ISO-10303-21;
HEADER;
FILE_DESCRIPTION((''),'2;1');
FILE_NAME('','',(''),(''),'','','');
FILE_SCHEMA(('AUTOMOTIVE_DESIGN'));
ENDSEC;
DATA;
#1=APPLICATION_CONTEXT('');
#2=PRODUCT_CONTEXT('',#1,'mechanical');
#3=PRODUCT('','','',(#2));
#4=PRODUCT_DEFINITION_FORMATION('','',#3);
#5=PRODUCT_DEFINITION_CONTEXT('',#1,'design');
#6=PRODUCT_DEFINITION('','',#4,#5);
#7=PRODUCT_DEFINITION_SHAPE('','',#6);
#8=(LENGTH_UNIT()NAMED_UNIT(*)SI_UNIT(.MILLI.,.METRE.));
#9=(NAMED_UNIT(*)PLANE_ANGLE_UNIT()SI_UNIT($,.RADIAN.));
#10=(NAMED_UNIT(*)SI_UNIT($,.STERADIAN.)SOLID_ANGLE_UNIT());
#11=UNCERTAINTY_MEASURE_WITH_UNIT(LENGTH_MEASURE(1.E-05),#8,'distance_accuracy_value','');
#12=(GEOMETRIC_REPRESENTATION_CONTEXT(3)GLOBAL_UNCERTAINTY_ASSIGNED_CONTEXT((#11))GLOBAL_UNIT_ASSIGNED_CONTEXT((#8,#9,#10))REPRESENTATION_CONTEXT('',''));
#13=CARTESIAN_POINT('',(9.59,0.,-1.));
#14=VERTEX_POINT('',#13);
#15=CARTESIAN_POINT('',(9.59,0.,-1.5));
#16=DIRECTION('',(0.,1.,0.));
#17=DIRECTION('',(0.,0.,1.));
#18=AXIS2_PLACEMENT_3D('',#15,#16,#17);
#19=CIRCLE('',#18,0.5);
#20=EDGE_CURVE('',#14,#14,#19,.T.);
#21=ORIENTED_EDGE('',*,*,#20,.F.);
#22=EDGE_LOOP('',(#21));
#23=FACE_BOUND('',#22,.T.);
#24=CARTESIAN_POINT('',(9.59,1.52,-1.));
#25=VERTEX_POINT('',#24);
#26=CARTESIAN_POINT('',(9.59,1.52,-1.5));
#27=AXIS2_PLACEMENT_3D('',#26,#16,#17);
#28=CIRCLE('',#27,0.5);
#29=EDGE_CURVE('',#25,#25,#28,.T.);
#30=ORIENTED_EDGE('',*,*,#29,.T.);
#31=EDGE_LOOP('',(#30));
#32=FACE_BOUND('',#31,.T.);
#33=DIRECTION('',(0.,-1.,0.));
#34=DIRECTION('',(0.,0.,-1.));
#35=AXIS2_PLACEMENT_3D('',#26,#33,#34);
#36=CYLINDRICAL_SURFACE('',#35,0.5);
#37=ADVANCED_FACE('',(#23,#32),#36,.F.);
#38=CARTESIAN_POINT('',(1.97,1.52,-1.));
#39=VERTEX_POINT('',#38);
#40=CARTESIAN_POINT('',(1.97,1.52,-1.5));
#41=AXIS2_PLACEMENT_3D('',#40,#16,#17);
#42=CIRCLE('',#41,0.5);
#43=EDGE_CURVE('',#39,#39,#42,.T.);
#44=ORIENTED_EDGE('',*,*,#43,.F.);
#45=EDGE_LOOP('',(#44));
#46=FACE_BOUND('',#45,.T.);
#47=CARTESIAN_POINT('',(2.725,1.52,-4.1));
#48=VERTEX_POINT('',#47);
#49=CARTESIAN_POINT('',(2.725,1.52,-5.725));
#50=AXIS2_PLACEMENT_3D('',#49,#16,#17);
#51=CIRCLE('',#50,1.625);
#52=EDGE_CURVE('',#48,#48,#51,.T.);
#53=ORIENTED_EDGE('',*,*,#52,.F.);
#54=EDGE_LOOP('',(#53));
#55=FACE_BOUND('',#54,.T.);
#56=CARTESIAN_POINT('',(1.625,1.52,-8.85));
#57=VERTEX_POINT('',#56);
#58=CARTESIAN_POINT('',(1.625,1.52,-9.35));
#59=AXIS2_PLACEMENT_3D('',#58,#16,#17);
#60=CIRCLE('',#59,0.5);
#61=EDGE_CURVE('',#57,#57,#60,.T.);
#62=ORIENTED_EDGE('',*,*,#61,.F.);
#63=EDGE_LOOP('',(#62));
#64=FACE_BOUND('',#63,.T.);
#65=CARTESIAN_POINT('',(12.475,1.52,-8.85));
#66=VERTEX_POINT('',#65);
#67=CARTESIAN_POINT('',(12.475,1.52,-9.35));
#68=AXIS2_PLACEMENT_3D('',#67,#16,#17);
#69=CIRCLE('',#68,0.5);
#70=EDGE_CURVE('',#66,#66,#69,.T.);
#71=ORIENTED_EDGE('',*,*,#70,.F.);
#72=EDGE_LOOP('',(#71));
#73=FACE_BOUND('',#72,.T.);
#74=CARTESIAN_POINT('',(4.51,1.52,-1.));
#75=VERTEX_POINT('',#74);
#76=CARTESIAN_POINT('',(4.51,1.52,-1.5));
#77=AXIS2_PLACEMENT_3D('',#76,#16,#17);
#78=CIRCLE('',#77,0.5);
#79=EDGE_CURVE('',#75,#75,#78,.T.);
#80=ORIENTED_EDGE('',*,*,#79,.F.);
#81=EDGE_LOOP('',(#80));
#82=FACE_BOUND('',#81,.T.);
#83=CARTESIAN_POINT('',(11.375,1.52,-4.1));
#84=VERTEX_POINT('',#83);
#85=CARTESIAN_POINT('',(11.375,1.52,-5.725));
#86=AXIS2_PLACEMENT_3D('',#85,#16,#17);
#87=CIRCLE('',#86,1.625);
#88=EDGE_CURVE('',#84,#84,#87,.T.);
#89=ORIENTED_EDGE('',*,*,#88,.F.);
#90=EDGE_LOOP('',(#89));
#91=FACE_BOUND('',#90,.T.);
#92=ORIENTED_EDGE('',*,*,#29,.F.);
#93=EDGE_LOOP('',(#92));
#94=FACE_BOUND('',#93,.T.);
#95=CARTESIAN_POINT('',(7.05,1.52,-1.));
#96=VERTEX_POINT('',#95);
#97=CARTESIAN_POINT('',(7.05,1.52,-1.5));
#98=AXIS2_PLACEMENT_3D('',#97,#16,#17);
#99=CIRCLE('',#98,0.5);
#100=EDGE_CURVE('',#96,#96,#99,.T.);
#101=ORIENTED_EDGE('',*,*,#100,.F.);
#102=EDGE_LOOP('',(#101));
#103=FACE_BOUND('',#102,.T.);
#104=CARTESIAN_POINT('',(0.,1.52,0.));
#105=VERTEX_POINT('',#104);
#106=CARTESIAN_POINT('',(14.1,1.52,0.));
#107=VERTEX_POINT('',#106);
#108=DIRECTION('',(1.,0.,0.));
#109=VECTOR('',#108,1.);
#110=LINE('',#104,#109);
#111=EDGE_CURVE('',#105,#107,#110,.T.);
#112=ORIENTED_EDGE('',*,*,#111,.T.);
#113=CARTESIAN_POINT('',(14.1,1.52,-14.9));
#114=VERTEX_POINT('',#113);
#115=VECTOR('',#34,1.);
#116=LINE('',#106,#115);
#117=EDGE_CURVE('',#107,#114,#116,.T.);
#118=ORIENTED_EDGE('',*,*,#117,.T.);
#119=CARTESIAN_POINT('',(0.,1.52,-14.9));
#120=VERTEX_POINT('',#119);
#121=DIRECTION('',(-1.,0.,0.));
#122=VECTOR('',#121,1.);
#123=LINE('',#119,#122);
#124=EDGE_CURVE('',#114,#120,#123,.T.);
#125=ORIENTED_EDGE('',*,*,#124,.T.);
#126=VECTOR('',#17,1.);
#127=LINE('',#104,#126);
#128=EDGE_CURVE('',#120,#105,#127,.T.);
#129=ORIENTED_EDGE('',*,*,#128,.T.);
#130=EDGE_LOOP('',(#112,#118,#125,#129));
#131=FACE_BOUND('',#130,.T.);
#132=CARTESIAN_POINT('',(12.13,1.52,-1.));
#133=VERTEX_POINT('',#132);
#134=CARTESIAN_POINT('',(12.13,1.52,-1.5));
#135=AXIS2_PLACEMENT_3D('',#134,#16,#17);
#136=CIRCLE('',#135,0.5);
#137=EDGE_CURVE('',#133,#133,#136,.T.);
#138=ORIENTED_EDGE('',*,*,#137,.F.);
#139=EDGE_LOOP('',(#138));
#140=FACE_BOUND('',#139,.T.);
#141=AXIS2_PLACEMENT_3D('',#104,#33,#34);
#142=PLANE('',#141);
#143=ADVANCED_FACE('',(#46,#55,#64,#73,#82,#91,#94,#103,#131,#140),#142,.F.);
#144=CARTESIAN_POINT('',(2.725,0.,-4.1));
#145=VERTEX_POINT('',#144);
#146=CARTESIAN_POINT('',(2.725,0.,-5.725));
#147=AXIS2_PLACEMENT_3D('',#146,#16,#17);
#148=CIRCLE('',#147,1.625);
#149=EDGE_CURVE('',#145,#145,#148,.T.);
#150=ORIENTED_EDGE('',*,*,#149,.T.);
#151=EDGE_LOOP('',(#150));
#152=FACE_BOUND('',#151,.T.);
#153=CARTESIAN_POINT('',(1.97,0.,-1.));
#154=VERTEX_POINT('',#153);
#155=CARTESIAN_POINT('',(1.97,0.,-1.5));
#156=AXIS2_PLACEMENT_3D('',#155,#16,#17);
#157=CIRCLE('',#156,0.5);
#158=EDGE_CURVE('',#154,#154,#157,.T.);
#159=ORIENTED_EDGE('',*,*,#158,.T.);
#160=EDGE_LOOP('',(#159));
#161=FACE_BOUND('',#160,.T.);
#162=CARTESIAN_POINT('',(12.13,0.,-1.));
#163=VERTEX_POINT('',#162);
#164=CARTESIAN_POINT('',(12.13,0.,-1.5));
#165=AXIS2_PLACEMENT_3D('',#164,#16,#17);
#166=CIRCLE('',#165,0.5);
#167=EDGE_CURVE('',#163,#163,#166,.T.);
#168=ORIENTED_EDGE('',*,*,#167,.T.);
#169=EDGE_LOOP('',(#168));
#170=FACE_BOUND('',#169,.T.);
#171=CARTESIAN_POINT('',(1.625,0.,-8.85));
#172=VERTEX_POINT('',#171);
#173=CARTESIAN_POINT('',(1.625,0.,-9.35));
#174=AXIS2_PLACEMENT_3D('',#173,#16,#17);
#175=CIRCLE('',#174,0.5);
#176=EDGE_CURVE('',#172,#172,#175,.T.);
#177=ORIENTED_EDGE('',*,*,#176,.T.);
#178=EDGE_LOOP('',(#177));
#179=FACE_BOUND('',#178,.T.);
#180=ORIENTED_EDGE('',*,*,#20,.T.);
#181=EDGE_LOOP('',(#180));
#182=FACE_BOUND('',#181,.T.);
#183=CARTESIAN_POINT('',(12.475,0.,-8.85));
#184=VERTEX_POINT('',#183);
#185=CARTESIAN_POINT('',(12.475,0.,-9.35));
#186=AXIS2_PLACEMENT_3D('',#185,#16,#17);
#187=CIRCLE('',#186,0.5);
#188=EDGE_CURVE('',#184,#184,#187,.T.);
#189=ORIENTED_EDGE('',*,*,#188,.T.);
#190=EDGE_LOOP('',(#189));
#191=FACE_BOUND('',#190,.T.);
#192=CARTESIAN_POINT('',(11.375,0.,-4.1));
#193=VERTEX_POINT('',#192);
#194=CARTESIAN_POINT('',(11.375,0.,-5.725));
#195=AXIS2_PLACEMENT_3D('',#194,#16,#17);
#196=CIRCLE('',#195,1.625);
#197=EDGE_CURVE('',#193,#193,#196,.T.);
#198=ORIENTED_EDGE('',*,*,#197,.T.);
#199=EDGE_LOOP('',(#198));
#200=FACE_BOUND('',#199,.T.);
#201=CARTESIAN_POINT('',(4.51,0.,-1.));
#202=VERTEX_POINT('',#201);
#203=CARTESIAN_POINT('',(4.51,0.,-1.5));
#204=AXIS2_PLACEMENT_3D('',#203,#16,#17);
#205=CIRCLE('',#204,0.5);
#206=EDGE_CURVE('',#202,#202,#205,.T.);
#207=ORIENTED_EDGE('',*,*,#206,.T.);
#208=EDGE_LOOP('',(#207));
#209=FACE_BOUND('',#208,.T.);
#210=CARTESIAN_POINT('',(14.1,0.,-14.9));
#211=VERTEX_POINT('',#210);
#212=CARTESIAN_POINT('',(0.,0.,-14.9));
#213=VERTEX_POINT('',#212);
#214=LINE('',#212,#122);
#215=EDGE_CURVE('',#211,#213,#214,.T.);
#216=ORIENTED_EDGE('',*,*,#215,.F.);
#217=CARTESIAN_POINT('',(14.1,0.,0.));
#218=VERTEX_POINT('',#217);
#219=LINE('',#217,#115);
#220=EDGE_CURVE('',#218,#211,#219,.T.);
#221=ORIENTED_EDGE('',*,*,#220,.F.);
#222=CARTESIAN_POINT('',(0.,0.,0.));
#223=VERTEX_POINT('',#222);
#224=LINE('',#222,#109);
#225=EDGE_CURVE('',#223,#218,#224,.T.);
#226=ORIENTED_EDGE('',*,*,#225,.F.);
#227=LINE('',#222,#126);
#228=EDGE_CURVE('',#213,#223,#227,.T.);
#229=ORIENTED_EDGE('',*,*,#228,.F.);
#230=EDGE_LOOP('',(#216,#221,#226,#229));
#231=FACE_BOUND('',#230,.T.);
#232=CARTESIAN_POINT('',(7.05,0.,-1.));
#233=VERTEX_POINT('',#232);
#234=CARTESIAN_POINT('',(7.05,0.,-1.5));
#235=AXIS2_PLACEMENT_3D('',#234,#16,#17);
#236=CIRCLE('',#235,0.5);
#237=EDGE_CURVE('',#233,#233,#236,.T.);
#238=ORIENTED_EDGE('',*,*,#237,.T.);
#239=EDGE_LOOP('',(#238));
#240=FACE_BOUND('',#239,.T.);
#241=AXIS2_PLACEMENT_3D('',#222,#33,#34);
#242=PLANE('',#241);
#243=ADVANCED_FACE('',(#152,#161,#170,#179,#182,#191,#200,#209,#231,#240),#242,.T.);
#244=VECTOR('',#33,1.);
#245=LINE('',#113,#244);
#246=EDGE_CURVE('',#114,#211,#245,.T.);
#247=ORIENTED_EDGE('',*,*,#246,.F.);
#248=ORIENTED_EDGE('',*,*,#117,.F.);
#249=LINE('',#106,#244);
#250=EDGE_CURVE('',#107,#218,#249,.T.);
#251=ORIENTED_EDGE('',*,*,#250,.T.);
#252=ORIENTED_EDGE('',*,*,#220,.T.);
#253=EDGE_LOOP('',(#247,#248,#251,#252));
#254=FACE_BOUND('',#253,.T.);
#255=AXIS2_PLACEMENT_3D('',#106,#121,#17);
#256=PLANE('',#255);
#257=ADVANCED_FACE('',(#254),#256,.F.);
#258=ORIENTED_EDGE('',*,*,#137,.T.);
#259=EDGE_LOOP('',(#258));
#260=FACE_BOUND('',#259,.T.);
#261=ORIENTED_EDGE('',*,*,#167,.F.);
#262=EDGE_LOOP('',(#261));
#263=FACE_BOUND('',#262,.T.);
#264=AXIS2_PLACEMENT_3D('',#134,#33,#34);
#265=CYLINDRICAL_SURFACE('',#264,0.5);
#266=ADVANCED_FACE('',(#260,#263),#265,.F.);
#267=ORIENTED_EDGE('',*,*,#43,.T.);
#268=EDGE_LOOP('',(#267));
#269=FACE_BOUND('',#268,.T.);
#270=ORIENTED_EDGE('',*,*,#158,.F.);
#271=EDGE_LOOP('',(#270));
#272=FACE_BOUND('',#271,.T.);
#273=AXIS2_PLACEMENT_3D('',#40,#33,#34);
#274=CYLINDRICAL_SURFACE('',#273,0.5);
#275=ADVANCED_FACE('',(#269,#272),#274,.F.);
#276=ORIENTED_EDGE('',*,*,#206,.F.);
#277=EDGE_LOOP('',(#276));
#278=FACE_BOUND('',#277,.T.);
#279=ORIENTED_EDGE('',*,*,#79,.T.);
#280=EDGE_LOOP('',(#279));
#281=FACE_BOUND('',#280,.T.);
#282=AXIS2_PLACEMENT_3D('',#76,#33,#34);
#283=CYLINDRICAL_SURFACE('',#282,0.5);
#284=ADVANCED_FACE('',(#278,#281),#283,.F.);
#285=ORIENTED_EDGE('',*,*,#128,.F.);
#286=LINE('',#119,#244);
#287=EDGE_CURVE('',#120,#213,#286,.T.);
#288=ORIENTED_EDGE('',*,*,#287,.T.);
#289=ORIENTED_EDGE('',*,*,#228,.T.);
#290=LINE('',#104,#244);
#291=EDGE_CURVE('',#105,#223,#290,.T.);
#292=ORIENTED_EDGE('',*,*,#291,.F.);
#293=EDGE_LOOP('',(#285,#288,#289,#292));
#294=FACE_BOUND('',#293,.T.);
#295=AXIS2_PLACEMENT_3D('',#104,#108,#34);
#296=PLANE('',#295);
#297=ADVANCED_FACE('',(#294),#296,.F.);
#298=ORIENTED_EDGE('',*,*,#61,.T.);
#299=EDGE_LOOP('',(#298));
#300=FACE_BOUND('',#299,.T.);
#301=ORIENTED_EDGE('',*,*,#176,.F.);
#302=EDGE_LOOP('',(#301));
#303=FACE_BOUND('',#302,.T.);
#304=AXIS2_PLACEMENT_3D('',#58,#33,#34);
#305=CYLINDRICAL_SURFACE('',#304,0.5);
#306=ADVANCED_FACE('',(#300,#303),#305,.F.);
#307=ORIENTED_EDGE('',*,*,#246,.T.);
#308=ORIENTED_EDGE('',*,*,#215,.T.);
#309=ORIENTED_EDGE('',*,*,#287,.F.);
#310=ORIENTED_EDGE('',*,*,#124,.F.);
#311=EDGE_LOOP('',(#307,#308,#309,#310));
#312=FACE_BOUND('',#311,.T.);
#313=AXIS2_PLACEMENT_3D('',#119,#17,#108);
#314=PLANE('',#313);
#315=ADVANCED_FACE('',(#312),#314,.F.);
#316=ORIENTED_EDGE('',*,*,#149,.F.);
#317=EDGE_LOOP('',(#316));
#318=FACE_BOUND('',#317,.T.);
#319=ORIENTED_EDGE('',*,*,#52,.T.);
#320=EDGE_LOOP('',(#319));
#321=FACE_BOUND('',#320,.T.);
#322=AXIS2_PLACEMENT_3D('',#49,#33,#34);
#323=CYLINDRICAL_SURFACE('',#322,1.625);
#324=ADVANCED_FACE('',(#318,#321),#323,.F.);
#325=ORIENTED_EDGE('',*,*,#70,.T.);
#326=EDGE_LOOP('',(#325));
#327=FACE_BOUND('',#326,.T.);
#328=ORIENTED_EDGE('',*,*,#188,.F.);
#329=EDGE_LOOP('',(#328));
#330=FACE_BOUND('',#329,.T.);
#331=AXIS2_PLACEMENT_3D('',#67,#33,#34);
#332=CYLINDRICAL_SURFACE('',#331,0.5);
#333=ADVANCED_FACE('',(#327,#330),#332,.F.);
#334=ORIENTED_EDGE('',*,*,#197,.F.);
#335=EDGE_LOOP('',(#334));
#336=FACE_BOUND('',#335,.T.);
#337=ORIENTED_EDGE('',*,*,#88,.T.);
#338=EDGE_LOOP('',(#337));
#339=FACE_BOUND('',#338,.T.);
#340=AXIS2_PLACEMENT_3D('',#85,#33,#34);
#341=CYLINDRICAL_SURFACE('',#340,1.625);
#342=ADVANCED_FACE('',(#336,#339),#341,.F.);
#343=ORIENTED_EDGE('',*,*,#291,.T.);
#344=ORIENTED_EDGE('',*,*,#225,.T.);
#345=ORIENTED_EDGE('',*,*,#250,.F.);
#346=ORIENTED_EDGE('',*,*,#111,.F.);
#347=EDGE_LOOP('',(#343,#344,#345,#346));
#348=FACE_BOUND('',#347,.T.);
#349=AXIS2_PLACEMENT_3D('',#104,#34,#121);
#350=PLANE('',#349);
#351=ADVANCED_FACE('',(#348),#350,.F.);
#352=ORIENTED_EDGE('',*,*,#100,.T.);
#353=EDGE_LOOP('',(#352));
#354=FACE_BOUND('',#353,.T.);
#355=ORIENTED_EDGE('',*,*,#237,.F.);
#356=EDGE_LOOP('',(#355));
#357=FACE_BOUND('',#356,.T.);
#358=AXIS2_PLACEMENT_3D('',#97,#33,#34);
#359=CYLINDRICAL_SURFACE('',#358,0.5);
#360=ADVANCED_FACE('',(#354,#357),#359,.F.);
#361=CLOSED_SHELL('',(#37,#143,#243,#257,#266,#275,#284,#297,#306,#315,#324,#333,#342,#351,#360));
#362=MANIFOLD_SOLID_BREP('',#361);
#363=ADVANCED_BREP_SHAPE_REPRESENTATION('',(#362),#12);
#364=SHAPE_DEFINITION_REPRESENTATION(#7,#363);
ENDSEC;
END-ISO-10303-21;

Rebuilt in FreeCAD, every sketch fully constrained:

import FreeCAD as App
import Part
import Sketcher

V = App.Vector
Q = App.Units.Quantity

doc = App.newDocument("Part")
body = doc.addObject("PartDesign::Body", "Body")

sketch1 = doc.addObject("Sketcher::SketchObject", "Sketch")
body.addObject(sketch1)
sketch1.AttachmentSupport = (doc.XZ_Plane, [""])
sketch1.MapMode = "FlatFace"
sketch1.addGeometry([
    Part.LineSegment(V(0, -14.9, 0), V(0, 0, 0)),
    Part.LineSegment(V(0, 0, 0), V(14.1, 0, 0)),
    Part.LineSegment(V(14.1, 0, 0), V(14.1, -14.9, 0)),
    Part.LineSegment(V(14.1, -14.9, 0), V(0, -14.9, 0)),
    Part.Circle(V(2, -1.5, 0), V(0, 0, 1), 0.5),
    Part.Circle(V(4.5, -1.5, 0), V(0, 0, 1), 0.5),
    Part.Circle(V(7, -1.5, 0), V(0, 0, 1), 0.5),
    Part.Circle(V(9.6, -1.5, 0), V(0, 0, 1), 0.5),
    Part.Circle(V(12.1, -1.5, 0), V(0, 0, 1), 0.5),
    Part.Circle(V(2.7, -5.7, 0), V(0, 0, 1), 1.6),
    Part.Circle(V(1.6, -9.3, 0), V(0, 0, 1), 0.5),
    Part.Circle(V(11.4, -5.7, 0), V(0, 0, 1), 1.6),
    Part.Circle(V(12.5, -9.3, 0), V(0, 0, 1), 0.5),
], False)
sketch1.addConstraint([
    Sketcher.Constraint("Coincident", 0, 2, 1, 1),
    Sketcher.Constraint("Coincident", 1, 2, 2, 1),
    Sketcher.Constraint("Coincident", 2, 2, 3, 1),
    Sketcher.Constraint("Coincident", 3, 2, 0, 1),
    Sketcher.Constraint("Vertical", 0),
    Sketcher.Constraint("Horizontal", 1),
    Sketcher.Constraint("Vertical", 2),
    Sketcher.Constraint("Horizontal", 3),
    Sketcher.Constraint("Coincident", 0, 2, -1, 1),
    Sketcher.Constraint("Equal", 4, 5),
    Sketcher.Constraint("Equal", 5, 6),
    Sketcher.Constraint("Equal", 6, 7),
    Sketcher.Constraint("Equal", 7, 8),
    Sketcher.Constraint("Equal", 8, 10),
    Sketcher.Constraint("Equal", 9, 11),
    Sketcher.Constraint("Equal", 10, 12),
    Sketcher.Constraint("Horizontal", 4, 3, 5, 3),
    Sketcher.Constraint("Horizontal", 5, 3, 6, 3),
    Sketcher.Constraint("Horizontal", 6, 3, 7, 3),
    Sketcher.Constraint("Horizontal", 7, 3, 8, 3),
    Sketcher.Constraint("Horizontal", 9, 3, 11, 3),
    Sketcher.Constraint("Horizontal", 10, 3, 12, 3),
    Sketcher.Constraint("Diameter", 4, Q("1 mm")),
    Sketcher.Constraint("Diameter", 9, Q("3.25 mm")),
    Sketcher.Constraint("DistanceX", 1, 1, 1, 2, Q("14.1 mm")),
    Sketcher.Constraint("DistanceY", 0, 1, 0, 2, Q("14.9 mm")),
    Sketcher.Constraint("DistanceY", 4, 3, -1, 1, Q("1.5 mm")),
    Sketcher.Constraint("DistanceX", 10, 3, 9, 3, Q("1.1 mm")),
    Sketcher.Constraint("DistanceX", 11, 3, 12, 3, Q("1.1 mm")),
    Sketcher.Constraint("DistanceX", -1, 1, 4, 3, Q("1.97 mm")),
    Sketcher.Constraint("DistanceX", -1, 1, 5, 3, Q("4.51 mm")),
    Sketcher.Constraint("DistanceX", -1, 1, 6, 3, Q("7.05 mm")),
    Sketcher.Constraint("DistanceX", -1, 1, 7, 3, Q("9.59 mm")),
    Sketcher.Constraint("DistanceX", -1, 1, 8, 3, Q("12.13 mm")),
    Sketcher.Constraint("DistanceY", 10, 3, -1, 1, Q("9.35 mm")),
    Sketcher.Constraint("DistanceX", 9, 3, 11, 3, Q("8.65 mm")),
    Sketcher.Constraint("DistanceX", -1, 1, 9, 3, Q("2.725 mm")),
    Sketcher.Constraint("DistanceY", 9, 3, -1, 1, Q("5.725 mm")),
])
pad1 = doc.addObject("PartDesign::Pad", "Pad")
body.addObject(pad1)
pad1.Profile = sketch1
pad1.Length = 1.52
pad1.Reversed = True

doc.recompute()
